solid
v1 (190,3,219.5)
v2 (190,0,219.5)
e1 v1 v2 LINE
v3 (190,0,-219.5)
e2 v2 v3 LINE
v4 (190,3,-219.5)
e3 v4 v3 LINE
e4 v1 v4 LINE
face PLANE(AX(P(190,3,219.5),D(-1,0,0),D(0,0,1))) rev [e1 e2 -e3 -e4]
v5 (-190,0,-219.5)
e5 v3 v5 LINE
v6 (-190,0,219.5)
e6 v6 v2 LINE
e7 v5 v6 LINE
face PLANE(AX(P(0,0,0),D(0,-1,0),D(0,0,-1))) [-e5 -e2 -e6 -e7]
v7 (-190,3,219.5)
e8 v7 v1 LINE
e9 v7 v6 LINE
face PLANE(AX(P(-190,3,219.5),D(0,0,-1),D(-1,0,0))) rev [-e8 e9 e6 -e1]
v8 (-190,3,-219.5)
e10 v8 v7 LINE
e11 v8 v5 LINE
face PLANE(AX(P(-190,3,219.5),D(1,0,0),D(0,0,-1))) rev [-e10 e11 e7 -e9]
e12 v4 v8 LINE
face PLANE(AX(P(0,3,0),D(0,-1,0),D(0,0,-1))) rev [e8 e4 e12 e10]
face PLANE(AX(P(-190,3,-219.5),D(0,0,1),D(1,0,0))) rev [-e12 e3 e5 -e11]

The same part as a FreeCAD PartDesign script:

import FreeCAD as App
import Part
import Sketcher
from FreeCAD import Vector


def add_polygon(sketch, points):
    """Adds a closed chain of lines whose ends are joined by coincident constraints."""
    first, n = sketch.GeometryCount, len(points)
    for a, b in zip(points, points[1:] + points[:1]):
        sketch.addGeometry(Part.LineSegment(App.Vector(*a, 0), App.Vector(*b, 0)), False)
    for i in range(n):
        sketch.addConstraint(Sketcher.Constraint("Coincident", first + i, 2, first + (i + 1) % n, 1))

doc = App.newDocument("Part")
params = doc.addObject("Spreadsheet::Sheet", "Params")
for row, (alias, value) in enumerate([
    ("sketch1_width", "380 mm"),
    ("sketch1_height", "439 mm"),
    ("pad1_length", "3 mm"),
], start=1):
    params.set(f"A{row}", alias)
    params.set(f"B{row}", "=" + value)
    params.setAlias(f"B{row}", alias)

body = doc.addObject("PartDesign::Body", "Body")

# Sketch on XZ plane
sketch1 = body.newObject("Sketcher::SketchObject", "Sketch")
sketch1.AttachmentSupport = (doc.getObject("XZ_Plane"), [""])
sketch1.MapMode = "FlatFace"
add_polygon(sketch1, [(-190, -219.5), (-190, 219.5), (190, 219.5), (190, -219.5)])  # lines 0-3
sketch1.addConstraint(Sketcher.Constraint("Vertical", 0))
sketch1.addConstraint(Sketcher.Constraint("Horizontal", 1))
sketch1.addConstraint(Sketcher.Constraint("Vertical", 2))
sketch1.addConstraint(Sketcher.Constraint("Horizontal", 3))
sketch1.addConstraint(Sketcher.Constraint("Symmetric", 0, 2, 2, 2, -1, 1))
sketch1.addConstraint(Sketcher.Constraint("DistanceX", 1, 1, 1, 2, 380.0))
sketch1.addConstraint(Sketcher.Constraint("DistanceY", 0, 1, 0, 2, 439.0))
sketch1.setExpression("Constraints[9]", "Params.sketch1_width")
sketch1.setExpression("Constraints[10]", "Params.sketch1_height")
pad1 = body.newObject("PartDesign::Pad", "Pad")
pad1.Profile = sketch1
pad1.setExpression("Length", "Params.pad1_length")
pad1.Reversed = True

doc.recompute()
